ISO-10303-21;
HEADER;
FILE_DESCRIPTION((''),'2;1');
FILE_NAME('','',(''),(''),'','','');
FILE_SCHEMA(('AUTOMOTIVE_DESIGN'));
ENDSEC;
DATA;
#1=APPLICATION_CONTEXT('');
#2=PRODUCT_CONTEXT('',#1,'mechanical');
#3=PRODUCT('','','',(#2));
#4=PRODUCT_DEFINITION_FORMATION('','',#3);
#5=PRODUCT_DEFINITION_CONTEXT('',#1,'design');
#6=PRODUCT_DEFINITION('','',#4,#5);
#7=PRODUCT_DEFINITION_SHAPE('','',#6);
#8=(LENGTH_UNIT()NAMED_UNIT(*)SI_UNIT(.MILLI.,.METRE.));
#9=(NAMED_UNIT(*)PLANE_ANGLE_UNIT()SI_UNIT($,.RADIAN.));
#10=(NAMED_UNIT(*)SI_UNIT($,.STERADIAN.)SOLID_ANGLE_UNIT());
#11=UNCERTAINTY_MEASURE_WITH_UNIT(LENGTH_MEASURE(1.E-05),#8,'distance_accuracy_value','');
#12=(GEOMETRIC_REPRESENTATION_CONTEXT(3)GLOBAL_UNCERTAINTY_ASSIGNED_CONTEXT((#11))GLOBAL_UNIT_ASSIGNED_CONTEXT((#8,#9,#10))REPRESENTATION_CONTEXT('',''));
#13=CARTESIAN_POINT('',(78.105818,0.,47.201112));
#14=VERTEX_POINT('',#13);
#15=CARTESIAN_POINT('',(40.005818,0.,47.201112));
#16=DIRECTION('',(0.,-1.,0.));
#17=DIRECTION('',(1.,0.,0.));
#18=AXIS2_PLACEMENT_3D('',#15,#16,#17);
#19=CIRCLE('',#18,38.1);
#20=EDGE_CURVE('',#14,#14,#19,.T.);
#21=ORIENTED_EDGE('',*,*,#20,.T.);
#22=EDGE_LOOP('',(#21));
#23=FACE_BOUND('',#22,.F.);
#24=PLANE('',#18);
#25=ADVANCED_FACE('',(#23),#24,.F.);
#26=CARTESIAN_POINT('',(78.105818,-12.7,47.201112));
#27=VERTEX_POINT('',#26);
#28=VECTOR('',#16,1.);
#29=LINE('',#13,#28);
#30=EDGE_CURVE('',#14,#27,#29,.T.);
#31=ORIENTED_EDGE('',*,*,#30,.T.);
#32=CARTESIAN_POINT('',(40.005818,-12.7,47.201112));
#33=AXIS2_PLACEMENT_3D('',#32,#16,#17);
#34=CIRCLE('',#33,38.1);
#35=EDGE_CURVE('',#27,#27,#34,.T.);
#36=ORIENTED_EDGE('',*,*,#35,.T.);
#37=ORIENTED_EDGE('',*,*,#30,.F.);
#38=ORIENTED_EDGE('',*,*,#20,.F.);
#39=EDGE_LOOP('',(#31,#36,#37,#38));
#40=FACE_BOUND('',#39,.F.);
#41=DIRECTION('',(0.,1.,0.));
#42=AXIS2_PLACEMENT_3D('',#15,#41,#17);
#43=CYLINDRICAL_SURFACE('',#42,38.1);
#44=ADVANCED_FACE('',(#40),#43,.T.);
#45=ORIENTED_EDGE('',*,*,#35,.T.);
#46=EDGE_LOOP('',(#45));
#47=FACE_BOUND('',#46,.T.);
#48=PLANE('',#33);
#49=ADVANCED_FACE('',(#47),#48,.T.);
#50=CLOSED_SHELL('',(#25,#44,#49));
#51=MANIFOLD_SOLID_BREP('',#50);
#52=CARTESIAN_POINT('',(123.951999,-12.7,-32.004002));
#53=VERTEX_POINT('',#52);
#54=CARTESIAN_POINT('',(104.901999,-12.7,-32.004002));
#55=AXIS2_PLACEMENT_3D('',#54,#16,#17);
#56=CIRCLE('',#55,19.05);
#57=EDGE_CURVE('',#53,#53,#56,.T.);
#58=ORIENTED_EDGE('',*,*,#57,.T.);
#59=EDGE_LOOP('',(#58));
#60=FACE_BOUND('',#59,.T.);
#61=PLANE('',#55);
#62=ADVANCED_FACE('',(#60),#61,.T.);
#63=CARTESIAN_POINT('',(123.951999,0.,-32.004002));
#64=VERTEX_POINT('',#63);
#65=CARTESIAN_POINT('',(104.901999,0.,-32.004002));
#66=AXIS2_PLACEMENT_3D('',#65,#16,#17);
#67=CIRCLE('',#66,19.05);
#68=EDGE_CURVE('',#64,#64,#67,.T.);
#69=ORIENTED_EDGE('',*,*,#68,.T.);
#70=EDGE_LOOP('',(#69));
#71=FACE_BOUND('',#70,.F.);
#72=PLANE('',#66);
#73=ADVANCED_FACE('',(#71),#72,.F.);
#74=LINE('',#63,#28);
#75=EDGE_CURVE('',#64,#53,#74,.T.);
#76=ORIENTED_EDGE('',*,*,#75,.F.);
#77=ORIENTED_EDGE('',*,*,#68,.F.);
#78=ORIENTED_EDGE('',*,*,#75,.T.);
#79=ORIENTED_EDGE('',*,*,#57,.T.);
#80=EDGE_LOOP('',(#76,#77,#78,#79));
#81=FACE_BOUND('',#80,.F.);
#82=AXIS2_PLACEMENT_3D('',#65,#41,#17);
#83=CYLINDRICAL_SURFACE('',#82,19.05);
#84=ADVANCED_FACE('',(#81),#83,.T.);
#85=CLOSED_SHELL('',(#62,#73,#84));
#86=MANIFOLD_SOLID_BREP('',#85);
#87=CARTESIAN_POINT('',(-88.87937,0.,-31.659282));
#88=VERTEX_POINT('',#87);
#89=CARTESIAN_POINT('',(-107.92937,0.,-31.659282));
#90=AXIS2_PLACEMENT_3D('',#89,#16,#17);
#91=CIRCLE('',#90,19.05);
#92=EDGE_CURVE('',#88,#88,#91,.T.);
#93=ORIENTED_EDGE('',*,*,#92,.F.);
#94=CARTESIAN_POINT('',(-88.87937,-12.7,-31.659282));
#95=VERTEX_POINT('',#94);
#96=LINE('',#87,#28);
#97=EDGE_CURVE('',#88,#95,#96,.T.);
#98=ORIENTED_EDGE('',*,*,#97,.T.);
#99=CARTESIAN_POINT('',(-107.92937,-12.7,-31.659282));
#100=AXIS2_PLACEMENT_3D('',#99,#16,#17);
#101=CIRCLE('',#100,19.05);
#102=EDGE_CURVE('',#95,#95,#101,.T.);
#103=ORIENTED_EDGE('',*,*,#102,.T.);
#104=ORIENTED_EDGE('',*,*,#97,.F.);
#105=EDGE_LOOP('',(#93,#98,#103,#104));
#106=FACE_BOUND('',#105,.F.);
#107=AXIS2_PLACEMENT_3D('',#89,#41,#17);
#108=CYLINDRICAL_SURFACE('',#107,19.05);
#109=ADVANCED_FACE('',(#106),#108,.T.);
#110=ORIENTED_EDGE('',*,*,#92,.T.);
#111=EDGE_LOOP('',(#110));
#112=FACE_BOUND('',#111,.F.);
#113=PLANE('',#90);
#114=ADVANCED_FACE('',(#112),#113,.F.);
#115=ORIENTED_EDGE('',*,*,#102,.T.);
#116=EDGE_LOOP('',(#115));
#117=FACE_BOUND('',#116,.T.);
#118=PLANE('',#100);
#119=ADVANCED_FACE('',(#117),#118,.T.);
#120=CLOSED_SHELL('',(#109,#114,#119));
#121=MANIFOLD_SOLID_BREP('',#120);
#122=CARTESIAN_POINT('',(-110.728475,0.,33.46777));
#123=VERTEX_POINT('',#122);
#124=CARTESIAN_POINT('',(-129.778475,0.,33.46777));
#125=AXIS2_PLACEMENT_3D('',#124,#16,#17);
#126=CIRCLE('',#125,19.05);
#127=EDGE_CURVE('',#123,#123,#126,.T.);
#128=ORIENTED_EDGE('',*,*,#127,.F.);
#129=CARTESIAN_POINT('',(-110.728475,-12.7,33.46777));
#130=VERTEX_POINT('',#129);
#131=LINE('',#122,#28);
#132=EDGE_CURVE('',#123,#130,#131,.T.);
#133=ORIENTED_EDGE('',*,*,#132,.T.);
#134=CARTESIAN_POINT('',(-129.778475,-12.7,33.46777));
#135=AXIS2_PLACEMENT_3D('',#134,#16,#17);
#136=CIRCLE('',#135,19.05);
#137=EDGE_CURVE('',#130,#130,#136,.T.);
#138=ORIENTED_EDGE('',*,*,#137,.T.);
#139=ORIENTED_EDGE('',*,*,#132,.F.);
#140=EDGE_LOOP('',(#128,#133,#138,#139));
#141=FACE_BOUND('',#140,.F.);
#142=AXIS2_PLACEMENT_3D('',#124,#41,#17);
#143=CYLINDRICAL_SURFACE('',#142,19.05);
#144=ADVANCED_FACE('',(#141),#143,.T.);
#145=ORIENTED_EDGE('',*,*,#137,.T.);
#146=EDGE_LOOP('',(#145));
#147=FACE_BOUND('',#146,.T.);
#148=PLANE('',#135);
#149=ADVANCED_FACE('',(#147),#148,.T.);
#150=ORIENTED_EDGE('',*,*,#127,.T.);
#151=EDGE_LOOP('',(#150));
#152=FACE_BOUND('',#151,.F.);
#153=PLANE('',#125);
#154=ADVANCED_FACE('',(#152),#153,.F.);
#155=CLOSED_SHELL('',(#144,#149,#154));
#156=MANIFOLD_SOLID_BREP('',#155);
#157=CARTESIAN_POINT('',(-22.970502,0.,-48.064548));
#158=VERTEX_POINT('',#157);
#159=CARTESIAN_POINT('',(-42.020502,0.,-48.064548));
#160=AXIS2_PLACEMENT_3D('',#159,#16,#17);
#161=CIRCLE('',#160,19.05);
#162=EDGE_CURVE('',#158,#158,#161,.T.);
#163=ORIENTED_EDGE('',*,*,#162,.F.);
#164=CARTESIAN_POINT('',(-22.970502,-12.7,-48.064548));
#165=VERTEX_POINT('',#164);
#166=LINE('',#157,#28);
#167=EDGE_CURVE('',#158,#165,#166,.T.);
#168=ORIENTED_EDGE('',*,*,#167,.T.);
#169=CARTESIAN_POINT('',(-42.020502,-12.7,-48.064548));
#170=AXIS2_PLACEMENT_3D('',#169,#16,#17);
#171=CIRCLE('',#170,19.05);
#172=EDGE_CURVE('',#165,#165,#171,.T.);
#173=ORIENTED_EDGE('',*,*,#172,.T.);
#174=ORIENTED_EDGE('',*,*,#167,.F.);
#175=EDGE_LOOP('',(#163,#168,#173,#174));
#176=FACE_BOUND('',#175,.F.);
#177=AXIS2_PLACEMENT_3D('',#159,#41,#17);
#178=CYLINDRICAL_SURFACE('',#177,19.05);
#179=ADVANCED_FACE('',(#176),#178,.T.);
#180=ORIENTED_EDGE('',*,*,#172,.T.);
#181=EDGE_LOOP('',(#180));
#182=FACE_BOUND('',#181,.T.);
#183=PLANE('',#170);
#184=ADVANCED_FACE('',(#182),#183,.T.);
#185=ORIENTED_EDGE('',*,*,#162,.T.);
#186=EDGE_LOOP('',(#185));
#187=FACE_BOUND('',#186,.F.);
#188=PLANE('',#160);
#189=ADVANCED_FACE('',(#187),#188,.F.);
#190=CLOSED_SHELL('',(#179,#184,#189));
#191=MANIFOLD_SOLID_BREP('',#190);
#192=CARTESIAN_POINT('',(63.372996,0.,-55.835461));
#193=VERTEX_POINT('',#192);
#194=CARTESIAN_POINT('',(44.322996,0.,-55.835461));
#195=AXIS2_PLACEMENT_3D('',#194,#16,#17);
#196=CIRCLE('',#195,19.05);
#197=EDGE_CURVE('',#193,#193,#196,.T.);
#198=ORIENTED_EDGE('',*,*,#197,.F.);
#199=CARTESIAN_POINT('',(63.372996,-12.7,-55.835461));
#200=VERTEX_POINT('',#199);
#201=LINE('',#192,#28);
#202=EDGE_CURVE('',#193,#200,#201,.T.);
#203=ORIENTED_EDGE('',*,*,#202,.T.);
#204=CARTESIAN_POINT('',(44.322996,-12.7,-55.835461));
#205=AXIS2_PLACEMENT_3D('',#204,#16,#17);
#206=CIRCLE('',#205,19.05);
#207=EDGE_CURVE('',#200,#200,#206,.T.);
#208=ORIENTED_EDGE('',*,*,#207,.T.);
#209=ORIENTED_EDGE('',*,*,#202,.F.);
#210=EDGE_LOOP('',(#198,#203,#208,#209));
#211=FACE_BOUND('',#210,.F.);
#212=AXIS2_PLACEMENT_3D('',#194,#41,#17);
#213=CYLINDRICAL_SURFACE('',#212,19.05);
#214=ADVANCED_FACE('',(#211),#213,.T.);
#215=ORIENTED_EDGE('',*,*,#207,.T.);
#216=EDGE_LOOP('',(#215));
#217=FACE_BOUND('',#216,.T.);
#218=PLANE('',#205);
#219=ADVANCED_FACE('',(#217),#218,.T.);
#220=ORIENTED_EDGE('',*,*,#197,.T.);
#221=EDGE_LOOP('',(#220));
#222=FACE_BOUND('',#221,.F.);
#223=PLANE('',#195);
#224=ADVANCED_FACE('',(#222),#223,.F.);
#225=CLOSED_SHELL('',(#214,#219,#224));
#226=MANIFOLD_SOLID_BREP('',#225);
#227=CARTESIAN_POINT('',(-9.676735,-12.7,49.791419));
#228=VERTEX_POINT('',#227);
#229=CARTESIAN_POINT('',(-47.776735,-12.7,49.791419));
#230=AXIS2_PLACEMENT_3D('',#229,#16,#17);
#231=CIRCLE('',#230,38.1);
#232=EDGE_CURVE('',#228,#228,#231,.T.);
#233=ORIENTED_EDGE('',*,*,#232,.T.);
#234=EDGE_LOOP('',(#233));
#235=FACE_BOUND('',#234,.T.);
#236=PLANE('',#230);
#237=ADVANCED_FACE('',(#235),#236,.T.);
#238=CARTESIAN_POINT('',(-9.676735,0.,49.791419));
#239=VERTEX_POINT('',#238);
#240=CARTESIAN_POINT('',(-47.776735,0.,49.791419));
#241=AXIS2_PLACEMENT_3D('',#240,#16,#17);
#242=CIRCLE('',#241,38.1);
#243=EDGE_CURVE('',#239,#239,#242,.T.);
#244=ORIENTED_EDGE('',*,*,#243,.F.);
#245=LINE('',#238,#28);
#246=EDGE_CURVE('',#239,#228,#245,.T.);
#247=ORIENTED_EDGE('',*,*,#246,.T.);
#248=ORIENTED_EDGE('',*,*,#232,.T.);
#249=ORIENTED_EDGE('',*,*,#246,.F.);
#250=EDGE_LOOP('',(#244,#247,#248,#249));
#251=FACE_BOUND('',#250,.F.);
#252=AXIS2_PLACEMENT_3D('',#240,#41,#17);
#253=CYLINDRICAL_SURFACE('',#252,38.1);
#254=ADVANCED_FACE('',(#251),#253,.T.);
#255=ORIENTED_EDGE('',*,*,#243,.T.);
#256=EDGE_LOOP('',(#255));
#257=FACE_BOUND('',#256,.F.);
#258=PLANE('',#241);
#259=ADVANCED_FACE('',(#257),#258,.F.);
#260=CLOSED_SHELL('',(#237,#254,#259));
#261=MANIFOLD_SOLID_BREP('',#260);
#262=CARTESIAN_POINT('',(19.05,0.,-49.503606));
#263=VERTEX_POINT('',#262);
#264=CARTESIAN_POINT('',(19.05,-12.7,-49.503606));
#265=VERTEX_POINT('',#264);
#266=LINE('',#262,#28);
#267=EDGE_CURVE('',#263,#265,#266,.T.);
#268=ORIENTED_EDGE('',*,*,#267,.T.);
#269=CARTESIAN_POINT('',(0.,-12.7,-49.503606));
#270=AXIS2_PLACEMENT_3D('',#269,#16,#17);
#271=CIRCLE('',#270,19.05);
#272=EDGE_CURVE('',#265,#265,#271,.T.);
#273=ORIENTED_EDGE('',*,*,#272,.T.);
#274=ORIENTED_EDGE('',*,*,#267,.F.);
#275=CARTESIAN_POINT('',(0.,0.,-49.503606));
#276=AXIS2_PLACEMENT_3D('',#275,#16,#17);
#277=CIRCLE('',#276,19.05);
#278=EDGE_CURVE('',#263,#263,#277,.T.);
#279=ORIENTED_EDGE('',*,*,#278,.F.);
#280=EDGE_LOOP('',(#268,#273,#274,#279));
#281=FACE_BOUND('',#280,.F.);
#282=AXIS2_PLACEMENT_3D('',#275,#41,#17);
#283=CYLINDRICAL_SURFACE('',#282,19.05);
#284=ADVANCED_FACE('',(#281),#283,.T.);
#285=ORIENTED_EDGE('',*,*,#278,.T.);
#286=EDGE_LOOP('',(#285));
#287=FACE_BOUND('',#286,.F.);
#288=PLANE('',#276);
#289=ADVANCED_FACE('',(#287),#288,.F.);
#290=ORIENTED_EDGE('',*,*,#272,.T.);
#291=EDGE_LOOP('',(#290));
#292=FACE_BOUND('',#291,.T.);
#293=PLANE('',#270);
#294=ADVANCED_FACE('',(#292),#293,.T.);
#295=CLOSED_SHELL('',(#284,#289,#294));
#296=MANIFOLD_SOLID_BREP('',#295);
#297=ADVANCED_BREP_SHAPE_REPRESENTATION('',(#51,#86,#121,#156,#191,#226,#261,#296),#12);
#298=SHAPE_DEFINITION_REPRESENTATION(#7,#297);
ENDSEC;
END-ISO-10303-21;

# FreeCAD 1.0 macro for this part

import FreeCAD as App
import Part
import Sketcher

V = App.Vector
Q = App.Units.Quantity

doc = App.newDocument("Part")
body = doc.addObject("PartDesign::Body", "Body")
body.AllowCompound = True

# Sketch on XZ plane
sketch1 = body.newObject("Sketcher::SketchObject", "Sketch")
sketch1.AttachmentSupport = (doc.getObject("XZ_Plane"), [""])
sketch1.MapMode = "FlatFace"
sketch1.addGeometry([
    Part.Circle(V(-48, 50, 0), V(0, 0, 1), 38),  # 0
    Part.Circle(V(40, 47, 0), V(0, 0, 1), 38),  # 1
    Part.Circle(V(-42, -48, 0), V(0, 0, 1), 19),  # 2
    Part.Circle(V(0, -50, 0), V(0, 0, 1), 19),  # 3
    Part.Circle(V(44, -56, 0), V(0, 0, 1), 19),  # 4
    Part.Circle(V(-108, -32, 0), V(0, 0, 1), 19),  # 5
    Part.Circle(V(105, -32, 0), V(0, 0, 1), 19),  # 6
    Part.Circle(V(-130, 33, 0), V(0, 0, 1), 19),  # 7
], False)
sketch1.addConstraint([
    Sketcher.Constraint("Equal", 0, 1),
    Sketcher.Constraint("Equal", 2, 3),
    Sketcher.Constraint("Equal", 3, 4),
    Sketcher.Constraint("Equal", 4, 5),
    Sketcher.Constraint("Equal", 5, 6),
    Sketcher.Constraint("Equal", 6, 7),
    Sketcher.Constraint("PointOnObject", 3, 3, -2),
    Sketcher.Constraint("Diameter", 0, Q("3 in")),
    Sketcher.Constraint("Diameter", 2, Q("1.5 in")),
    Sketcher.Constraint("DistanceX", -1, 1, 6, 3, Q("4.13 in")),
    Sketcher.Constraint("DistanceY", 6, 3, -1, 1, Q("1.2600001 in")),
    Sketcher.Constraint("DistanceX", -1, 1, 4, 3, Q("1.7449998 in")),
    Sketcher.Constraint("DistanceX", 2, 3, 4, 3, 86.343498),
    Sketcher.Constraint("DistanceY", 5, 3, 0, 3, 81.450701),
    Sketcher.Constraint("DistanceY", -1, 1, 0, 3, 49.791419),
    Sketcher.Constraint("DistanceY", 2, 3, -1, 1, 48.064548),
    Sketcher.Constraint("DistanceY", 4, 3, -1, 1, 55.835461),
    Sketcher.Constraint("DistanceX", 5, 3, -1, 1, 107.92937),
    Sketcher.Constraint("DistanceY", -1, 1, 7, 3, 33.46777),
    Sketcher.Constraint("DistanceX", 2, 3, 1, 3, 82.02632),
    Sketcher.Constraint("DistanceY", 2, 3, 1, 3, 95.26566),
    Sketcher.Constraint("DistanceY", 3, 3, 1, 3, 96.704718),
    Sketcher.Constraint("DistanceX", 0, 3, 4, 3, 92.099731),
    Sketcher.Constraint("DistanceX", 7, 3, 0, 3, 82.00174),
])
pad1 = body.newObject("PartDesign::Pad", "Pad")
pad1.Profile = sketch1
pad1.Length = Q("0.5 in")

doc.recompute()
